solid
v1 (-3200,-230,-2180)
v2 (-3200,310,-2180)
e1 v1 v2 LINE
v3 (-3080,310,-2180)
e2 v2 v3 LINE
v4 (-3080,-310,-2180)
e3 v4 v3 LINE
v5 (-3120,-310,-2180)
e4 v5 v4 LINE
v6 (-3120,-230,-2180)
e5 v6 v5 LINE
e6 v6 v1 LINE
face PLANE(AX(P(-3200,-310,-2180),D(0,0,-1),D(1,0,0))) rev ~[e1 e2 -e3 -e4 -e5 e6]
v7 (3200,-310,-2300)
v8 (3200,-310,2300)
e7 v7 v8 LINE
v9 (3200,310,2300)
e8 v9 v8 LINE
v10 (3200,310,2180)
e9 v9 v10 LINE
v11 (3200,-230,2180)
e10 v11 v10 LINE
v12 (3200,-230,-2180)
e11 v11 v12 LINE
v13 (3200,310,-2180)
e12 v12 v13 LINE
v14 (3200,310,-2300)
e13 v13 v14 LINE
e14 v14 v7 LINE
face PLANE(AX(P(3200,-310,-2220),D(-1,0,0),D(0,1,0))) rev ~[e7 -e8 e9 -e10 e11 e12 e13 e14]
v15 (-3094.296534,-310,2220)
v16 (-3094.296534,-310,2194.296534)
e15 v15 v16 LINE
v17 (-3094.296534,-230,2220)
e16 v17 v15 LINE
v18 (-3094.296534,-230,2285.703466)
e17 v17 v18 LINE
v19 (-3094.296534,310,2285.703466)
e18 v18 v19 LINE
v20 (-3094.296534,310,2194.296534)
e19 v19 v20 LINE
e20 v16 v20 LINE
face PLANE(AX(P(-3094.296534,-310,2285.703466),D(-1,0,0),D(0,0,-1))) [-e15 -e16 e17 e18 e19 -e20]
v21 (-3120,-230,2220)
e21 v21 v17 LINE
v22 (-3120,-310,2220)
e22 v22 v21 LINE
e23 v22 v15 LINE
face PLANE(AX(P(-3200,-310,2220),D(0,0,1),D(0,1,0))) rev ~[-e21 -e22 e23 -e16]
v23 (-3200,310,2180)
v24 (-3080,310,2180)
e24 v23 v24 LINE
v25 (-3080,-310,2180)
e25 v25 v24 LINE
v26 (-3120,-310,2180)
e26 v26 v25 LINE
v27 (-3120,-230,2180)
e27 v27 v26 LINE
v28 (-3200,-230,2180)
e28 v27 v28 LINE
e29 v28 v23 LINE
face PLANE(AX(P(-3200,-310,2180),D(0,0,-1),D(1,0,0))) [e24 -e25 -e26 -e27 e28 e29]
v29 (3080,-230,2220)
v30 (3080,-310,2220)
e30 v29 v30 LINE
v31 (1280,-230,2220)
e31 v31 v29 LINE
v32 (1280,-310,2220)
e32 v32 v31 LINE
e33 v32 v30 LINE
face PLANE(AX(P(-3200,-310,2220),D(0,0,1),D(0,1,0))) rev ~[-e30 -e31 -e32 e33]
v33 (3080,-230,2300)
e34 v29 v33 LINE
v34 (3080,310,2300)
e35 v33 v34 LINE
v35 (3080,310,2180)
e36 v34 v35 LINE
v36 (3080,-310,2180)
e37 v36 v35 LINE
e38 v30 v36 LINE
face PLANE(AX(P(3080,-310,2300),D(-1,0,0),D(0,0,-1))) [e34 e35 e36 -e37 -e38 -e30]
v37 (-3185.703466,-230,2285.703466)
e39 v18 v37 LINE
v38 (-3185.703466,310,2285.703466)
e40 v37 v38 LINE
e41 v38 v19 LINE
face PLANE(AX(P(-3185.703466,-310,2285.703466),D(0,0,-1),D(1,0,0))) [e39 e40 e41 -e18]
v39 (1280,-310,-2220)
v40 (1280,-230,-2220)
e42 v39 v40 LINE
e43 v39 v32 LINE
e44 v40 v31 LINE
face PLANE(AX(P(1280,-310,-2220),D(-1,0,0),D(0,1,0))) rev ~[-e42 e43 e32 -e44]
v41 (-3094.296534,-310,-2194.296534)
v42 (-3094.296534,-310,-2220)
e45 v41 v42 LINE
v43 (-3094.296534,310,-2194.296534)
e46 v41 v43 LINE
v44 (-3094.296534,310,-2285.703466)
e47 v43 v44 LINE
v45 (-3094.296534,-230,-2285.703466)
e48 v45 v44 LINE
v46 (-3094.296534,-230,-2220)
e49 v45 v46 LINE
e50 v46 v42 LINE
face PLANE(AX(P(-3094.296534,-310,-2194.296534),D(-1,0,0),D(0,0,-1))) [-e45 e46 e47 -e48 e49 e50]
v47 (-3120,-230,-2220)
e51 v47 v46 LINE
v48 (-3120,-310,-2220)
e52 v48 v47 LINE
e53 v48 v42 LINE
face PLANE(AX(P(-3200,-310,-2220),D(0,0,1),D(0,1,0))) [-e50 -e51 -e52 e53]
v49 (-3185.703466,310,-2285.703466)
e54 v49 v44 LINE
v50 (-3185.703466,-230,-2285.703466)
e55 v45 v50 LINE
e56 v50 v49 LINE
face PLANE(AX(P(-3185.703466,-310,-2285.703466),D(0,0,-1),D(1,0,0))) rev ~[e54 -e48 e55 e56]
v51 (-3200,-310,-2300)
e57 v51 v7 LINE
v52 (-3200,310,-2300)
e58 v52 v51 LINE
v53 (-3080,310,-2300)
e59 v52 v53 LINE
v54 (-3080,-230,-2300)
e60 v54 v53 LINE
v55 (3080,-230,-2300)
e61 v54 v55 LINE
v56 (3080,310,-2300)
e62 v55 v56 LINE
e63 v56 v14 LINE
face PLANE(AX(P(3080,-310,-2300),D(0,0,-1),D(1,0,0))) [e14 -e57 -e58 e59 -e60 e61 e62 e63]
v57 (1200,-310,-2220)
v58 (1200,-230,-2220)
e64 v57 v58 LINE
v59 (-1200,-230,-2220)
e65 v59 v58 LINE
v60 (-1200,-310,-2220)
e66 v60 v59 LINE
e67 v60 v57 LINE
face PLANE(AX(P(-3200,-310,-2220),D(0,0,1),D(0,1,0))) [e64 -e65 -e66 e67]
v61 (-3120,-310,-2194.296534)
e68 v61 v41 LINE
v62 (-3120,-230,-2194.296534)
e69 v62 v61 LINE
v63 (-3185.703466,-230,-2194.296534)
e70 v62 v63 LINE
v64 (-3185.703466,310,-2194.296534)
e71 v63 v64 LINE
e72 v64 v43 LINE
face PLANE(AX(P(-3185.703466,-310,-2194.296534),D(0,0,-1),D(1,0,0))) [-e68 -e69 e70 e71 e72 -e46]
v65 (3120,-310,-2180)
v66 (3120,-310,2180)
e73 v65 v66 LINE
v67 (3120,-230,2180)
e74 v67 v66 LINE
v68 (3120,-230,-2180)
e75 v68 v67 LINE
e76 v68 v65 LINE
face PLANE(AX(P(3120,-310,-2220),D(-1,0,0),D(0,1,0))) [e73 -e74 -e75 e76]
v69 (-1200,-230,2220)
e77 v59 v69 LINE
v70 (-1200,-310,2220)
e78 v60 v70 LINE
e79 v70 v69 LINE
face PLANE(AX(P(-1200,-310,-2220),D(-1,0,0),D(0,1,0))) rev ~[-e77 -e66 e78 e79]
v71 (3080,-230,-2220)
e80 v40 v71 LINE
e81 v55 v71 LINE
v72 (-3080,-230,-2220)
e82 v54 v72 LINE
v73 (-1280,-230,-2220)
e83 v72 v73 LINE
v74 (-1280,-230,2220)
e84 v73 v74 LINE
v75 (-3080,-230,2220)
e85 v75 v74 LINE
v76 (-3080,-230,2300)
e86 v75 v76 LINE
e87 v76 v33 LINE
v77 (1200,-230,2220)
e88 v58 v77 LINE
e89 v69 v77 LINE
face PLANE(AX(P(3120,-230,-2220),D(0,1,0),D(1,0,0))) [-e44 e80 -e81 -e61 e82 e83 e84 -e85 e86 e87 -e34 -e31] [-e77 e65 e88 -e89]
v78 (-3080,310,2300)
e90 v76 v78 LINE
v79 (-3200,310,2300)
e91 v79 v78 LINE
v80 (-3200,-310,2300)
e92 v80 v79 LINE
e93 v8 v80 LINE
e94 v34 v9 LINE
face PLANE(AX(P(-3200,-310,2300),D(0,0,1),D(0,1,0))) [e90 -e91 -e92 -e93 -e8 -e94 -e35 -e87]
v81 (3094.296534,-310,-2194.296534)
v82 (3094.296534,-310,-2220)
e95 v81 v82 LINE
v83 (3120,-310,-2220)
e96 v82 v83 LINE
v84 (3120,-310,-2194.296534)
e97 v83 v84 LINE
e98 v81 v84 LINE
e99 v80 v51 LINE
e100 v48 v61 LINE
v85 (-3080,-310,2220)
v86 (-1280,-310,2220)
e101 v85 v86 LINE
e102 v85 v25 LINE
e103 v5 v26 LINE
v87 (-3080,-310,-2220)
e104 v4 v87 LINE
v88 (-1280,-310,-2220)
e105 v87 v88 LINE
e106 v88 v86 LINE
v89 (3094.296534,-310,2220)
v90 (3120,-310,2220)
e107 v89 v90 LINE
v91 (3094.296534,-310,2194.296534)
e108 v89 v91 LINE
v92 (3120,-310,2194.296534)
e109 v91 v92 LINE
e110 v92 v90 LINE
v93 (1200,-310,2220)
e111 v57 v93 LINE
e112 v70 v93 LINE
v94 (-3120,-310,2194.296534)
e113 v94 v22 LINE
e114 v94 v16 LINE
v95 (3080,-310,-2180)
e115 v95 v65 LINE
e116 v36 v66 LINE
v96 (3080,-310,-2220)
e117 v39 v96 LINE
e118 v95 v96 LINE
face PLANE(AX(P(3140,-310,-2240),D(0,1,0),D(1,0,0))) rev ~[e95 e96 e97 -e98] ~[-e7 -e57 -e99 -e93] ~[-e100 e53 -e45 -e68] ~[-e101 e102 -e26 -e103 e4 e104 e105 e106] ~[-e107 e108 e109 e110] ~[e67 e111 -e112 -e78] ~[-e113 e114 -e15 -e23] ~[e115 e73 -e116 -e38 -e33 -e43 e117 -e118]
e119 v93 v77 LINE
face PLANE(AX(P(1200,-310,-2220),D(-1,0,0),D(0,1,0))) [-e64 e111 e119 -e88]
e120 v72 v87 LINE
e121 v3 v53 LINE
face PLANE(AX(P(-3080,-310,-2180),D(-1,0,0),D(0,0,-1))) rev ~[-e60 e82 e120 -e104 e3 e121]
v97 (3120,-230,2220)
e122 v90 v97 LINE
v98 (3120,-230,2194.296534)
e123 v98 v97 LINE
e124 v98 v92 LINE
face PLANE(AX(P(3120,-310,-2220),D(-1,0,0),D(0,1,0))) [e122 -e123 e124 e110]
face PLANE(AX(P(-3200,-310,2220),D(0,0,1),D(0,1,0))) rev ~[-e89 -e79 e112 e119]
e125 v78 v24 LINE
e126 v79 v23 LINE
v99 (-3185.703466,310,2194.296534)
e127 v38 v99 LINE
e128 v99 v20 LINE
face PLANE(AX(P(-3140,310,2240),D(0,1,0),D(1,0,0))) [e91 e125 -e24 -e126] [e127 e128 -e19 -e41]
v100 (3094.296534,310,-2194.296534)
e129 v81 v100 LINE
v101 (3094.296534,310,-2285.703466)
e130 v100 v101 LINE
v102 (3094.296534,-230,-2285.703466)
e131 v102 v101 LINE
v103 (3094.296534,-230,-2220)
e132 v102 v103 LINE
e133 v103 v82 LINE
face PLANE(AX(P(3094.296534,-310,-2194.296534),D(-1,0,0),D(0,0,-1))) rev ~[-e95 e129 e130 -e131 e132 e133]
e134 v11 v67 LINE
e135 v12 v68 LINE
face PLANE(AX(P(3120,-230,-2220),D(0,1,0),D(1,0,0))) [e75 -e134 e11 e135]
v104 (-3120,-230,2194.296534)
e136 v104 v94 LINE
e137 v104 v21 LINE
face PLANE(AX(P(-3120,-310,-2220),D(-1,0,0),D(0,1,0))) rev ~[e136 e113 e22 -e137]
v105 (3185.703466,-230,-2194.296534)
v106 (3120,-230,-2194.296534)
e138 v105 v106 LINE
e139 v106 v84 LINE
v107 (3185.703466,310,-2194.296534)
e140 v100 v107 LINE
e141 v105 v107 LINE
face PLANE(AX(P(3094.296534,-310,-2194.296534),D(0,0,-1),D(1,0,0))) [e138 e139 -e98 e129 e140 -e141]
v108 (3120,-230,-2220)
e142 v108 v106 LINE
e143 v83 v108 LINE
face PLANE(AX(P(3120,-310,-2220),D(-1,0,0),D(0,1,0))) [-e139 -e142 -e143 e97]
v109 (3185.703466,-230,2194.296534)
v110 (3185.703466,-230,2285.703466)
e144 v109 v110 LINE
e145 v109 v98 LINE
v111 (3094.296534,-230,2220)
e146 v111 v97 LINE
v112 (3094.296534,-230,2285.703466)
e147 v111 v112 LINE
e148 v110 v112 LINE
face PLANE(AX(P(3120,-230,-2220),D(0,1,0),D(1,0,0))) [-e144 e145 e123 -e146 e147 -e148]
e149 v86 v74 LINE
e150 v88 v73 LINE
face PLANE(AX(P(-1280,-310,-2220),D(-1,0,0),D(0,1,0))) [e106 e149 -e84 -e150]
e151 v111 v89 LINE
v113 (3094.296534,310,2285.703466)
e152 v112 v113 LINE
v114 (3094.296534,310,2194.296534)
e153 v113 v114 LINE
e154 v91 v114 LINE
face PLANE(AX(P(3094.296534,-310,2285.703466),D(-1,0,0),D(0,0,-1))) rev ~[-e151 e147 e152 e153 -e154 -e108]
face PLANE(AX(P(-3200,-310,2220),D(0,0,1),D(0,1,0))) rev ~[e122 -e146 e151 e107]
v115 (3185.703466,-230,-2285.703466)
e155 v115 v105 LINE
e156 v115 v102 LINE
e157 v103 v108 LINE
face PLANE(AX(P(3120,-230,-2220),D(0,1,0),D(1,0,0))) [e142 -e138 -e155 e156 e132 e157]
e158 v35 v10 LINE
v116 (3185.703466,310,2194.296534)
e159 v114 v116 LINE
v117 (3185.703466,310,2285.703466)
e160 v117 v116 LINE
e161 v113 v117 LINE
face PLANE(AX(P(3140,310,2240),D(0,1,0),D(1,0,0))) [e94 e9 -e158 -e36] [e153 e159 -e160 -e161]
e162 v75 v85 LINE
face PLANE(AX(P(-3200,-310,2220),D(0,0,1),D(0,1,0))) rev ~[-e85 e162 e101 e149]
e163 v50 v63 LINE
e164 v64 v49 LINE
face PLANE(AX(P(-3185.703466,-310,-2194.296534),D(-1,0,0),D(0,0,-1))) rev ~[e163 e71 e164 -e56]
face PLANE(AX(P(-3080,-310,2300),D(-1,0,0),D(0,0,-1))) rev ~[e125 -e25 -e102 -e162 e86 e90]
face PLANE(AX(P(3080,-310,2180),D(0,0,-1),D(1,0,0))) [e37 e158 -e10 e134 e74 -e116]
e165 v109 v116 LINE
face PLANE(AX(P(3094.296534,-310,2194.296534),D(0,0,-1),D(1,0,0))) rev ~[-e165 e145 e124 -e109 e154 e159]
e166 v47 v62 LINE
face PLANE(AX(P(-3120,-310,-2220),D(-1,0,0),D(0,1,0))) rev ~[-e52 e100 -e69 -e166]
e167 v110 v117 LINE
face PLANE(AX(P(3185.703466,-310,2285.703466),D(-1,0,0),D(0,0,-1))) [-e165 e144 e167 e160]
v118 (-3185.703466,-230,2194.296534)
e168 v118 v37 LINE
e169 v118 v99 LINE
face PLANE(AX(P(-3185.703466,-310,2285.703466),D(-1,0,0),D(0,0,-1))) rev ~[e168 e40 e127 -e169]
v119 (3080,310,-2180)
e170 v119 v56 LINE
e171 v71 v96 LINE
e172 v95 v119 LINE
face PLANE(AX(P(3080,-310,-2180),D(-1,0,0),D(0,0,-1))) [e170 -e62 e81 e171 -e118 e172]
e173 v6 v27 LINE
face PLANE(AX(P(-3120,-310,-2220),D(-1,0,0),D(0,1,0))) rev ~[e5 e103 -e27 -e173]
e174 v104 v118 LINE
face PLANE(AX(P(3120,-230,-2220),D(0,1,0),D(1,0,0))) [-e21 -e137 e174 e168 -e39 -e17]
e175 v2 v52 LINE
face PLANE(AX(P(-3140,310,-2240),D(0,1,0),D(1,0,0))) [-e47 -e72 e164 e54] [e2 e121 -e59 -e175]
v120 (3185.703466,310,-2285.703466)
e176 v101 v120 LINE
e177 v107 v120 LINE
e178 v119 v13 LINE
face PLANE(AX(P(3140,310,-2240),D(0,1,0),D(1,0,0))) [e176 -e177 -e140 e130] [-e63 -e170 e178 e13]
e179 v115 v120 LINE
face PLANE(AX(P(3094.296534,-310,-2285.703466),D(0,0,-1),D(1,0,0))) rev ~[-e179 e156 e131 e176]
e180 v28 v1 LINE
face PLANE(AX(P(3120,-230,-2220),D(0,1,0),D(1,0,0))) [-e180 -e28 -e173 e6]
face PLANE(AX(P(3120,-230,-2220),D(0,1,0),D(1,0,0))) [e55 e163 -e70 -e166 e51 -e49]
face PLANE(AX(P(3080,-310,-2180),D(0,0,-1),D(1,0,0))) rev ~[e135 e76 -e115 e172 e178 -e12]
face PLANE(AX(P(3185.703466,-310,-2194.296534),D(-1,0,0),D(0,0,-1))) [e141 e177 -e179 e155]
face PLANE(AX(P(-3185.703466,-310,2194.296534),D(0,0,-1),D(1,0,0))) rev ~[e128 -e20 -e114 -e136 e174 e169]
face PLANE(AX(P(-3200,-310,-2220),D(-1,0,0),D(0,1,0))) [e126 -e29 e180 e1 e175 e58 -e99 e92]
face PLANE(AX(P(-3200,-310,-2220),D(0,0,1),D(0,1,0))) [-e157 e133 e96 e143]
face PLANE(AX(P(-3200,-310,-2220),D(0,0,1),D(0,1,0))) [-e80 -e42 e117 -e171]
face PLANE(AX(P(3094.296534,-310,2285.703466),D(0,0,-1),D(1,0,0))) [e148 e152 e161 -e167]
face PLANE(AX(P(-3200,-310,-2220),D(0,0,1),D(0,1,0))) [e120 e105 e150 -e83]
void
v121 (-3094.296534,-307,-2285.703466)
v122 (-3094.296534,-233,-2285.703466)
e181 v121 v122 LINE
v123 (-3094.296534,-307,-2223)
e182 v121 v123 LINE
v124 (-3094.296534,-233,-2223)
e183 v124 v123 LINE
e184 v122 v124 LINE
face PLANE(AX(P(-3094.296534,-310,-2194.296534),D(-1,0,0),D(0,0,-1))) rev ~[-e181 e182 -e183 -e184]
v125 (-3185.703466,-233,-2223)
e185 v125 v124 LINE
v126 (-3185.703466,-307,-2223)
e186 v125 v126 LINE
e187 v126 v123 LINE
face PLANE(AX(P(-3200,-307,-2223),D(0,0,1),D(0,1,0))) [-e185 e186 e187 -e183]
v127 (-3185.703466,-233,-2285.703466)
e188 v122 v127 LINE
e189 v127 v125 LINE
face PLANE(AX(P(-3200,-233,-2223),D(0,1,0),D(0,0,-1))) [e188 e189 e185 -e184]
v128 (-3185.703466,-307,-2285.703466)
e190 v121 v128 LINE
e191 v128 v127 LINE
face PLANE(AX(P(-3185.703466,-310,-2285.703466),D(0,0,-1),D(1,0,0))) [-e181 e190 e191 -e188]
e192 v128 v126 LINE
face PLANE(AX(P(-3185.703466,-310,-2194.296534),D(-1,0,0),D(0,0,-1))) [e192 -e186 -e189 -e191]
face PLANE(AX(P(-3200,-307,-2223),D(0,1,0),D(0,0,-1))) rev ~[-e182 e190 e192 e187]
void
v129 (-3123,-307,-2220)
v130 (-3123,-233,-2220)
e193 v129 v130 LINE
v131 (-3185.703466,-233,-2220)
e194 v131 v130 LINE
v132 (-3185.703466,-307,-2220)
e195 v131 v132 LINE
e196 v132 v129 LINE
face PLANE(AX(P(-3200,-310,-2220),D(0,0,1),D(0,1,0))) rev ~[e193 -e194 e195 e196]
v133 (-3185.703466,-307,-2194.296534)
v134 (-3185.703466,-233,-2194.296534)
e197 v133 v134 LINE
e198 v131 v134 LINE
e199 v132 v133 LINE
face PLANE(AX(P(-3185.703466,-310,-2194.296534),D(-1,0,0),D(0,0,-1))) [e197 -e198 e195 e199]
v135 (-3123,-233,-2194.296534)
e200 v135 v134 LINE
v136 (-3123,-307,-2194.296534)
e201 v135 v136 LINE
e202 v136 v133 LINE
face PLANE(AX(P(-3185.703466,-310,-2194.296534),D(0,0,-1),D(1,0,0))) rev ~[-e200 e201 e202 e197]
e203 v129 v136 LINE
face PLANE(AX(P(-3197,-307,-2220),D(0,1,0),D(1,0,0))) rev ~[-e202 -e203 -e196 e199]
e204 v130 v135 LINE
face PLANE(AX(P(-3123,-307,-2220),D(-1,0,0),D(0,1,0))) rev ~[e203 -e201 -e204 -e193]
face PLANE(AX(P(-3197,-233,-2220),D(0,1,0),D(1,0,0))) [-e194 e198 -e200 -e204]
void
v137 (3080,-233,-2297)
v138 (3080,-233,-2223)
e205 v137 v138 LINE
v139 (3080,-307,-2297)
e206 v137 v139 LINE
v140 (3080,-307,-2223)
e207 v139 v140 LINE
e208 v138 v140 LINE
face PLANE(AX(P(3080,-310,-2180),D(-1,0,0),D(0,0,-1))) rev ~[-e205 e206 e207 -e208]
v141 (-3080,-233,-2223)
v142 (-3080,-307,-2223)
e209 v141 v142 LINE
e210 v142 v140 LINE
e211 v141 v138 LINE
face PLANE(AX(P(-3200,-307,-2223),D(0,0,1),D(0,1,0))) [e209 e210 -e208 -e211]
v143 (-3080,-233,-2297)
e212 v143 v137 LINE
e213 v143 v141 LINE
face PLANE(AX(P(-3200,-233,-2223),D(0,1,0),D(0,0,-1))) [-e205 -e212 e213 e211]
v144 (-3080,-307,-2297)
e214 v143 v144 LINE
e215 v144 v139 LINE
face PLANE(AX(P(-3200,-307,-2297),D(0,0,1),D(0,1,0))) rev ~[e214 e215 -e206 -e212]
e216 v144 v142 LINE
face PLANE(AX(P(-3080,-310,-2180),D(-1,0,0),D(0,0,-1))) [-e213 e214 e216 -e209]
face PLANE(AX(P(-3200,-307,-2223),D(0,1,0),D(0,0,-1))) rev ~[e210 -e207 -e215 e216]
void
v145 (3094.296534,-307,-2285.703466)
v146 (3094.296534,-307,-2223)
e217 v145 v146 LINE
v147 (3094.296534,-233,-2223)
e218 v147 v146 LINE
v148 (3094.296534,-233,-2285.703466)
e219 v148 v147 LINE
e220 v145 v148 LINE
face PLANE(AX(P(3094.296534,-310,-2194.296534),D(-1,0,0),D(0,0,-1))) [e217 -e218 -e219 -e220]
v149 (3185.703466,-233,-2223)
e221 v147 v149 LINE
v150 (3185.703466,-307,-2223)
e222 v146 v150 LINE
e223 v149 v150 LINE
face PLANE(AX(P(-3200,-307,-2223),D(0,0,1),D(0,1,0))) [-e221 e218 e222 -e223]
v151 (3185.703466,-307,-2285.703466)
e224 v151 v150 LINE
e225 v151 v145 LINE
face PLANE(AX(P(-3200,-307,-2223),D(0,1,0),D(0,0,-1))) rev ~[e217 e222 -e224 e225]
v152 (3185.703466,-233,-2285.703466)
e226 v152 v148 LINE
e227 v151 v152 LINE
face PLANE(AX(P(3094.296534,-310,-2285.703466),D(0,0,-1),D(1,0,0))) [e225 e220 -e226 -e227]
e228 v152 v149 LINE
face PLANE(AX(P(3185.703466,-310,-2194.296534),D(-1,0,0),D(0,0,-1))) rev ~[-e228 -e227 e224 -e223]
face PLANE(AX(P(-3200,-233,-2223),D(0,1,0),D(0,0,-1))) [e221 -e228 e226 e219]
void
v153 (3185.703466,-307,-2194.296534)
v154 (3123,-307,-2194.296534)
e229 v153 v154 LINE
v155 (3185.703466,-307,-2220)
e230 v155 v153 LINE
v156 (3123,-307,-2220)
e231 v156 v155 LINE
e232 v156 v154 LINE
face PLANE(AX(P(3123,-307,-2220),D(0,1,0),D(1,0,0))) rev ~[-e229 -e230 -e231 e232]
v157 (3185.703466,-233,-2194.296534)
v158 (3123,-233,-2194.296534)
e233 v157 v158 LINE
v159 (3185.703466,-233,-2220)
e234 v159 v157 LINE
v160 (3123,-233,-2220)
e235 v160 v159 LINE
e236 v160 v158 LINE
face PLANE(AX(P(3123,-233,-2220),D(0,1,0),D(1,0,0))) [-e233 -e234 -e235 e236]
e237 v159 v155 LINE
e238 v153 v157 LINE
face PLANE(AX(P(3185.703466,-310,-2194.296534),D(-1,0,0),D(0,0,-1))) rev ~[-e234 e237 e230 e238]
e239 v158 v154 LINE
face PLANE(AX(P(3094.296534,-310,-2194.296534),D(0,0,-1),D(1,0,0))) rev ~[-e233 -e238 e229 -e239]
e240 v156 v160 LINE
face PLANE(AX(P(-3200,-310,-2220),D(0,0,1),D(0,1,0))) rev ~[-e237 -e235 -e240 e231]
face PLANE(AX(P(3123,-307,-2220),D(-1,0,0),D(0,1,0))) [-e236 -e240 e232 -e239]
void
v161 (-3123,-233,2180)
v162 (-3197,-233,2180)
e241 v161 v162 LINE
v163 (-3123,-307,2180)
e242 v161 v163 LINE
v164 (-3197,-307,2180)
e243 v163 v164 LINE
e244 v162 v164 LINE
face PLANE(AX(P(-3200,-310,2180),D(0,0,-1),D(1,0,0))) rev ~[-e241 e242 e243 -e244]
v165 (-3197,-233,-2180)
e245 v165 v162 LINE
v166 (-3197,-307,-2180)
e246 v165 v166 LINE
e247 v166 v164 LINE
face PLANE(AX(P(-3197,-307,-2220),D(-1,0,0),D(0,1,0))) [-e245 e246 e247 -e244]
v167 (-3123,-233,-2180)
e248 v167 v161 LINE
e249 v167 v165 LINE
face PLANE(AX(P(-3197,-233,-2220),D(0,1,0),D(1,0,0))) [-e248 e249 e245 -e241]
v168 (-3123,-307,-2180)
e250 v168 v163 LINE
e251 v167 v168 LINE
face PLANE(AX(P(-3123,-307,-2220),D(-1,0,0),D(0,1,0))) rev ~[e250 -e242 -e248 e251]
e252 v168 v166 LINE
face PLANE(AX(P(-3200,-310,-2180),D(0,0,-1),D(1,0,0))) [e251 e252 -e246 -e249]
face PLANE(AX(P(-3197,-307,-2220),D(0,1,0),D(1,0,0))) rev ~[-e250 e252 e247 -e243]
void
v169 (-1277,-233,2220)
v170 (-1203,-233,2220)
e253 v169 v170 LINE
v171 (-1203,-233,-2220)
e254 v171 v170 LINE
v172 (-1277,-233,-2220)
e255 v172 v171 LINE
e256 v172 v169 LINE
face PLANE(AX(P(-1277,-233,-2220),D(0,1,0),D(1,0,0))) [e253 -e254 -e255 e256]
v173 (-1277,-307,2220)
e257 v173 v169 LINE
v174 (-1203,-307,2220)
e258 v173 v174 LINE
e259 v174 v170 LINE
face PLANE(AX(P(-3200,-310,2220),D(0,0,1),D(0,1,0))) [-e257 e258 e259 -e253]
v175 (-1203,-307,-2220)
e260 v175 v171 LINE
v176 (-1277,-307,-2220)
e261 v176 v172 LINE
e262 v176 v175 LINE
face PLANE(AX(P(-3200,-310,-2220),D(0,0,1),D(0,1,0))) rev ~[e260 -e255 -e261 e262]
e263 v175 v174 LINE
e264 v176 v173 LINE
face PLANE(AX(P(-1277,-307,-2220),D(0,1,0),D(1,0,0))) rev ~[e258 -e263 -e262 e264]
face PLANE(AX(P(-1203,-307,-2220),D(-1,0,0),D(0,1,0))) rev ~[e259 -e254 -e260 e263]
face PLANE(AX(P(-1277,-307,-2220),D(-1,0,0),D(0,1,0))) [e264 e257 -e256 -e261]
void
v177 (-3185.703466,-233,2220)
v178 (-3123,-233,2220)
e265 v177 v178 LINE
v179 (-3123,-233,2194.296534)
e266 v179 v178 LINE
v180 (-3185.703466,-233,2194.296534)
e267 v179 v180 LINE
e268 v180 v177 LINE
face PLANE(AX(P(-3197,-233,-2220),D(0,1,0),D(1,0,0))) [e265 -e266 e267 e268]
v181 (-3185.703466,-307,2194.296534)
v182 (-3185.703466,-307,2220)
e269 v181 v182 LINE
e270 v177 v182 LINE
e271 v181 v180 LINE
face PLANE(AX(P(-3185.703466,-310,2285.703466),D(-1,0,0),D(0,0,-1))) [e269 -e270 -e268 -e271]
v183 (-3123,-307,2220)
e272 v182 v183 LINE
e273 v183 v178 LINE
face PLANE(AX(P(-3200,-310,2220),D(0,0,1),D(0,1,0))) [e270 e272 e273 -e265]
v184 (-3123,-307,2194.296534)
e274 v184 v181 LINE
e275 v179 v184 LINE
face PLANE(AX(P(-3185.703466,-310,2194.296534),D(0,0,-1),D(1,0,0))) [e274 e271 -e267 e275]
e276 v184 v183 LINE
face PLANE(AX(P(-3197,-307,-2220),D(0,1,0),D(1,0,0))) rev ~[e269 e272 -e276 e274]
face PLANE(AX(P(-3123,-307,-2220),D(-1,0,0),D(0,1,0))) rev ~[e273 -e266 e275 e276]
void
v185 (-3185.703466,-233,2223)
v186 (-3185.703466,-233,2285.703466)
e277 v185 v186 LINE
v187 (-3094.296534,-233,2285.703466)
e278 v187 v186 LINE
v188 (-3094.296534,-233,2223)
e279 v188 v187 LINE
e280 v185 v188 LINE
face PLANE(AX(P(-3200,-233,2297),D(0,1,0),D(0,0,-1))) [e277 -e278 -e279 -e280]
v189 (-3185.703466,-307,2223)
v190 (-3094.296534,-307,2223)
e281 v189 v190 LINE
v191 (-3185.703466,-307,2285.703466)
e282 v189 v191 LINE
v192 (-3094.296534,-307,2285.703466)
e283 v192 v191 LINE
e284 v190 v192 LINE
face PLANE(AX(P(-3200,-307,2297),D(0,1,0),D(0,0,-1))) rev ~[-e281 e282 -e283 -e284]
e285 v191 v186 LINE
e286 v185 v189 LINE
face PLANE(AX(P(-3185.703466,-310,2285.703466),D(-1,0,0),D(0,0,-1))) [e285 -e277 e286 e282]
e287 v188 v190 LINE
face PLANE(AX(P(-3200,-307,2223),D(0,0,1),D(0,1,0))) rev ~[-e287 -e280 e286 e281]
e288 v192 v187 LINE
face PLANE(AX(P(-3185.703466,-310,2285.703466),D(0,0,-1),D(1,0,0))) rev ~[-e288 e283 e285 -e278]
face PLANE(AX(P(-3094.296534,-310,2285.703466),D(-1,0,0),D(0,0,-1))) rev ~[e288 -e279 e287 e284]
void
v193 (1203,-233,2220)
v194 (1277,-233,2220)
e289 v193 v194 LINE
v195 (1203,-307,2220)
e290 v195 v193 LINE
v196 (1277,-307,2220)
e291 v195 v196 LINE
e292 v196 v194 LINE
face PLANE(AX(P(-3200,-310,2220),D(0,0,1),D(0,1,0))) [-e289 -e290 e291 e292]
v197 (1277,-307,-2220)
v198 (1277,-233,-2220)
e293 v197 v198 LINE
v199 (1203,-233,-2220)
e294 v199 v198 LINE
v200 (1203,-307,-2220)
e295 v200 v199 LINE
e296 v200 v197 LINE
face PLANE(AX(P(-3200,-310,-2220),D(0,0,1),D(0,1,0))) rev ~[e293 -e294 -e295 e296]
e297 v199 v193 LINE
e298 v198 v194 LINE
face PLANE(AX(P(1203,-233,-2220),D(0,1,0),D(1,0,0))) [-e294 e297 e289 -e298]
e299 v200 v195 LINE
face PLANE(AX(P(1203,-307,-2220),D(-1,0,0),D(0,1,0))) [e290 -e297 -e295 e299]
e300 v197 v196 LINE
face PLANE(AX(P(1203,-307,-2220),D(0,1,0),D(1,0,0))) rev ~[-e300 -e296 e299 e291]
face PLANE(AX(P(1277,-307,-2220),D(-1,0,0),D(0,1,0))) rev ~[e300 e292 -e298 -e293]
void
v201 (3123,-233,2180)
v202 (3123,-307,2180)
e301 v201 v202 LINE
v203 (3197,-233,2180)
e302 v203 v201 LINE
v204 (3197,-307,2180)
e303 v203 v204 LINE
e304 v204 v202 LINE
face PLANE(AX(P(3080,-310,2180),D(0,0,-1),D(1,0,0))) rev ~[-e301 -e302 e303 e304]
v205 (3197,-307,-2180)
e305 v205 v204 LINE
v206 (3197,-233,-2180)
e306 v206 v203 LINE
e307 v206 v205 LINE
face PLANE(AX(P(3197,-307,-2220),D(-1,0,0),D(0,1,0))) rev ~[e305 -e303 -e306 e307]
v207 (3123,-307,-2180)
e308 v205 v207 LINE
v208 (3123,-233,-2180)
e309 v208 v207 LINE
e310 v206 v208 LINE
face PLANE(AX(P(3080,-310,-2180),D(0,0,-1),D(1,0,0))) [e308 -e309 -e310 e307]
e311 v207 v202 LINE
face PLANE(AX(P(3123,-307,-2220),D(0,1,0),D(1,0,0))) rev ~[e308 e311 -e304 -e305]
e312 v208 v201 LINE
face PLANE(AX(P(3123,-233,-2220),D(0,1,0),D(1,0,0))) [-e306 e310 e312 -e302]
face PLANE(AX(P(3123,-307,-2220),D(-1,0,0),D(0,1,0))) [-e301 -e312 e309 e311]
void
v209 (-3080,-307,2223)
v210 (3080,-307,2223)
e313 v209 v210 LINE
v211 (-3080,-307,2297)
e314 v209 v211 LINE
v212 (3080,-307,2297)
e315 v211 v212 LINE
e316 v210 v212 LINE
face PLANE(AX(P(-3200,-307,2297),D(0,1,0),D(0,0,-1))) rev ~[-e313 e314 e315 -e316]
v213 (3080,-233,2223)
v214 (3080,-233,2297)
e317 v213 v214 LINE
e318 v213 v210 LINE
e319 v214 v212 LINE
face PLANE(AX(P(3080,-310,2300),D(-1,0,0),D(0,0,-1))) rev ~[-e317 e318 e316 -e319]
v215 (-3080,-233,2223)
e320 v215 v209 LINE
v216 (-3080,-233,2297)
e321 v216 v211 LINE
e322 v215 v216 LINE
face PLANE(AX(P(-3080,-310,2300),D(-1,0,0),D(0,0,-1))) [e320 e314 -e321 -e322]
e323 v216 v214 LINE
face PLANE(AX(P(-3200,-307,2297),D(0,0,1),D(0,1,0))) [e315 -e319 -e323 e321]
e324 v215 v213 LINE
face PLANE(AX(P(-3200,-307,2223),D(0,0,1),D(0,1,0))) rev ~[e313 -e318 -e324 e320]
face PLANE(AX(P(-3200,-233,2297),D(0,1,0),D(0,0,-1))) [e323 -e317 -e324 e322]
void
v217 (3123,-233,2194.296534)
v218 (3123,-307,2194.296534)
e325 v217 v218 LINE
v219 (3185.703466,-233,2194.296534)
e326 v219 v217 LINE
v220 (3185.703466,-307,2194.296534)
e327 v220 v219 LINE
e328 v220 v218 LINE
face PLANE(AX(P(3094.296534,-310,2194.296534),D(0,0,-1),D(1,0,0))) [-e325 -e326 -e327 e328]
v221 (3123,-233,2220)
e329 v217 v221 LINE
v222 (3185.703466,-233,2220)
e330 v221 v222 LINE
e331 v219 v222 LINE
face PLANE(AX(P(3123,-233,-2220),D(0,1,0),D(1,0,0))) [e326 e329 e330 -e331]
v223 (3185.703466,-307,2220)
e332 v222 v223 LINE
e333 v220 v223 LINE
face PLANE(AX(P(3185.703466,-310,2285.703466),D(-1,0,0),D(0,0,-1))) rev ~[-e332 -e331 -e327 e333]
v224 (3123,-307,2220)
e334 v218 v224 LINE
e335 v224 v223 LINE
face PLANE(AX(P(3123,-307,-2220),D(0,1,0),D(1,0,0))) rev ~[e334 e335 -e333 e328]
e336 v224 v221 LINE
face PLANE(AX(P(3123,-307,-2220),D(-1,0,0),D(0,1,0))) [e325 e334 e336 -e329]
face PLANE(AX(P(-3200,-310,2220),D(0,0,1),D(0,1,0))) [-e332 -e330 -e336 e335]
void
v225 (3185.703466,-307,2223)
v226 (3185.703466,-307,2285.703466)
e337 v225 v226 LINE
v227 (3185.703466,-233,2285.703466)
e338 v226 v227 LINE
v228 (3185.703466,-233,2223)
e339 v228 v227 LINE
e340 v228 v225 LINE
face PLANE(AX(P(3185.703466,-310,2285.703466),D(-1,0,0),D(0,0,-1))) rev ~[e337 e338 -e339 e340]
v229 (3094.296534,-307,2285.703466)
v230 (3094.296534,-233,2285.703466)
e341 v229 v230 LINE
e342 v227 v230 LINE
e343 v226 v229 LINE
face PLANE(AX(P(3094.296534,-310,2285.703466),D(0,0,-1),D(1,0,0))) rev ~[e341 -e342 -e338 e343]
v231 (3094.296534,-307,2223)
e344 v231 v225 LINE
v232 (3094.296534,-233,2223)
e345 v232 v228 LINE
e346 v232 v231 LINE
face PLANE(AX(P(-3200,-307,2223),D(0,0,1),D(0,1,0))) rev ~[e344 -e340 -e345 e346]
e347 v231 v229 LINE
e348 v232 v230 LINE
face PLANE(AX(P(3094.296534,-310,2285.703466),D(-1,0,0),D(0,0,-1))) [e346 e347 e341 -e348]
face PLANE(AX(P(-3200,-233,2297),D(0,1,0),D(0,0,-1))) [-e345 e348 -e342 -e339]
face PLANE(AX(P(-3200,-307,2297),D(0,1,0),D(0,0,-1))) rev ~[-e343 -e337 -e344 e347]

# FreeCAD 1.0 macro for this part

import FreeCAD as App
import Part
import Sketcher
Q = App.Units.Quantity

doc = App.newDocument("Part")
body = doc.addObject("PartDesign::Body", "Body")

sketch1 = body.newObject("Sketcher::SketchObject", "Sketch")
sketch1.AttachmentSupport = (doc.getObject("YZ_Plane"), [""])
sketch1.MapMode = "FlatFace"
sketch1.AttachmentOffset = App.Placement(App.Vector(0, 0, -3200), App.Rotation())
sketch1.addGeometry([
    Part.LineSegment(App.Vector(-230, -2220, 0), App.Vector(-310, -2220, 0)),
    Part.LineSegment(App.Vector(-310, -2220, 0), App.Vector(-310, -2300, 0)),
    Part.LineSegment(App.Vector(-310, -2300, 0), App.Vector(-230, -2300, 0)),
    Part.LineSegment(App.Vector(-230, -2300, 0), App.Vector(-230, -2220, 0)),
    Part.LineSegment(App.Vector(-307, -2297, 0), App.Vector(-307, -2223, 0)),
    Part.LineSegment(App.Vector(-307, -2223, 0), App.Vector(-233, -2223, 0)),
    Part.LineSegment(App.Vector(-233, -2223, 0), App.Vector(-233, -2297, 0)),
    Part.LineSegment(App.Vector(-233, -2297, 0), App.Vector(-307, -2297, 0)),
], False)
sketch1.addConstraint([
    Sketcher.Constraint("Coincident", 0, 2, 1, 1),
    Sketcher.Constraint("Coincident", 1, 2, 2, 1),
    Sketcher.Constraint("Coincident", 2, 2, 3, 1),
    Sketcher.Constraint("Coincident", 3, 2, 0, 1),
    Sketcher.Constraint("Coincident", 4, 2, 5, 1),
    Sketcher.Constraint("Coincident", 5, 2, 6, 1),
    Sketcher.Constraint("Coincident", 6, 2, 7, 1),
    Sketcher.Constraint("Coincident", 7, 2, 4, 1),
    Sketcher.Constraint("Horizontal", 0),
    Sketcher.Constraint("Vertical", 1),
    Sketcher.Constraint("Horizontal", 2),
    Sketcher.Constraint("Vertical", 3),
    Sketcher.Constraint("Vertical", 4),
    Sketcher.Constraint("Horizontal", 5),
    Sketcher.Constraint("Vertical", 6),
    Sketcher.Constraint("Horizontal", 7),
    Sketcher.Constraint("Equal", 2, 1),
    Sketcher.Constraint("Equal", 7, 4),
    Sketcher.Constraint("DistanceX", 0, 2, 0, 1, Q("80 mm")),
    Sketcher.Constraint("DistanceX", 5, 1, 5, 2, Q("74 mm")),
    Sketcher.Constraint("DistanceX", 0, 2, -1, 1, Q("310 mm")),
    Sketcher.Constraint("DistanceY", 0, 2, -1, 1, Q("2220 mm")),
    Sketcher.Constraint("DistanceX", 4, 2, -1, 1, Q("307 mm")),
    Sketcher.Constraint("DistanceY", 4, 2, -1, 1, Q("2223 mm")),
])
pad1 = body.newObject("PartDesign::Pad", "Pad")
pad1.Profile = sketch1
pad1.Length = 6400
body2 = doc.addObject("PartDesign::Body", "Body001")

sketch2 = body2.newObject("Sketcher::SketchObject", "Sketch001")
sketch2.AttachmentSupport = (doc.getObject("YZ_Plane001"), [""])
sketch2.MapMode = "FlatFace"
sketch2.AttachmentOffset = App.Placement(App.Vector(0, 0, -3200), App.Rotation())
sketch2.addGeometry([
    Part.LineSegment(App.Vector(-230, 2300, 0), App.Vector(-310, 2300, 0)),
    Part.LineSegment(App.Vector(-310, 2300, 0), App.Vector(-310, 2220, 0)),
    Part.LineSegment(App.Vector(-310, 2220, 0), App.Vector(-230, 2220, 0)),
    Part.LineSegment(App.Vector(-230, 2220, 0), App.Vector(-230, 2300, 0)),
    Part.LineSegment(App.Vector(-307, 2223, 0), App.Vector(-307, 2297, 0)),
    Part.LineSegment(App.Vector(-307, 2297, 0), App.Vector(-233, 2297, 0)),
    Part.LineSegment(App.Vector(-233, 2297, 0), App.Vector(-233, 2223, 0)),
    Part.LineSegment(App.Vector(-233, 2223, 0), App.Vector(-307, 2223, 0)),
], False)
sketch2.addConstraint([
    Sketcher.Constraint("Coincident", 0, 2, 1, 1),
    Sketcher.Constraint("Coincident", 1, 2, 2, 1),
    Sketcher.Constraint("Coincident", 2, 2, 3, 1),
    Sketcher.Constraint("Coincident", 3, 2, 0, 1),
    Sketcher.Constraint("Coincident", 4, 2, 5, 1),
    Sketcher.Constraint("Coincident", 5, 2, 6, 1),
    Sketcher.Constraint("Coincident", 6, 2, 7, 1),
    Sketcher.Constraint("Coincident", 7, 2, 4, 1),
    Sketcher.Constraint("Horizontal", 0),
    Sketcher.Constraint("Vertical", 1),
    Sketcher.Constraint("Horizontal", 2),
    Sketcher.Constraint("Vertical", 3),
    Sketcher.Constraint("Vertical", 4),
    Sketcher.Constraint("Horizontal", 5),
    Sketcher.Constraint("Vertical", 6),
    Sketcher.Constraint("Horizontal", 7),
    Sketcher.Constraint("Equal", 2, 1),
    Sketcher.Constraint("Equal", 7, 4),
    Sketcher.Constraint("DistanceX", 0, 2, 0, 1, Q("80 mm")),
    Sketcher.Constraint("DistanceX", 5, 1, 5, 2, Q("74 mm")),
    Sketcher.Constraint("DistanceX", 0, 2, -1, 1, Q("310 mm")),
    Sketcher.Constraint("DistanceY", -1, 1, 0, 2, Q("2300 mm")),
    Sketcher.Constraint("DistanceX", 4, 2, -1, 1, Q("307 mm")),
    Sketcher.Constraint("DistanceY", -1, 1, 4, 2, Q("2297 mm")),
])
pad2 = body2.newObject("PartDesign::Pad", "Pad001")
pad2.Profile = sketch2
pad2.Length = 6400
body.AllowCompound = True
doc.recompute()

boolean = body.newObject("PartDesign::Boolean", "Boolean")
boolean.Type = "Fuse"
boolean.addObjects([body2])

sketch3 = body.newObject("Sketcher::SketchObject", "Sketch002")
sketch3.AttachmentSupport = (doc.getObject("XY_Plane"), [""])
sketch3.MapMode = "FlatFace"
sketch3.AttachmentOffset = App.Placement(App.Vector(0, 0, -2220), App.Rotation())
sketch3.addGeometry([
    Part.LineSegment(App.Vector(-3200, -230, 0), App.Vector(-3200, -310, 0)),
    Part.LineSegment(App.Vector(-3200, -310, 0), App.Vector(-3120, -310, 0)),
    Part.LineSegment(App.Vector(-3120, -310, 0), App.Vector(-3120, -230, 0)),
    Part.LineSegment(App.Vector(-3120, -230, 0), App.Vector(-3200, -230, 0)),
    Part.LineSegment(App.Vector(-3123, -307, 0), App.Vector(-3197, -307, 0)),
    Part.LineSegment(App.Vector(-3197, -307, 0), App.Vector(-3197, -233, 0)),
    Part.LineSegment(App.Vector(-3197, -233, 0), App.Vector(-3123, -233, 0)),
    Part.LineSegment(App.Vector(-3123, -233, 0), App.Vector(-3123, -307, 0)),
], False)
sketch3.addConstraint([
    Sketcher.Constraint("Coincident", 0, 2, 1, 1),
    Sketcher.Constraint("Coincident", 1, 2, 2, 1),
    Sketcher.Constraint("Coincident", 2, 2, 3, 1),
    Sketcher.Constraint("Coincident", 3, 2, 0, 1),
    Sketcher.Constraint("Coincident", 4, 2, 5, 1),
    Sketcher.Constraint("Coincident", 5, 2, 6, 1),
    Sketcher.Constraint("Coincident", 6, 2, 7, 1),
    Sketcher.Constraint("Coincident", 7, 2, 4, 1),
    Sketcher.Constraint("Vertical", 0),
    Sketcher.Constraint("Horizontal", 1),
    Sketcher.Constraint("Vertical", 2),
    Sketcher.Constraint("Horizontal", 3),
    Sketcher.Constraint("Horizontal", 4),
    Sketcher.Constraint("Vertical", 5),
    Sketcher.Constraint("Horizontal", 6),
    Sketcher.Constraint("Vertical", 7),
    Sketcher.Constraint("Equal", 3, 0),
    Sketcher.Constraint("Equal", 6, 5),
    Sketcher.Constraint("DistanceX", 1, 1, 1, 2, Q("80 mm")),
    Sketcher.Constraint("DistanceX", 4, 2, 4, 1, Q("74 mm")),
    Sketcher.Constraint("DistanceX", 0, 2, -1, 1, Q("3200 mm")),
    Sketcher.Constraint("DistanceY", 0, 2, -1, 1, Q("310 mm")),
    Sketcher.Constraint("DistanceX", 4, 2, -1, 1, Q("3197 mm")),
    Sketcher.Constraint("DistanceY", 4, 2, -1, 1, Q("307 mm")),
])
pad3 = body.newObject("PartDesign::Pad", "Pad002")
pad3.Profile = sketch3
pad3.Length = 4440

sketch4 = body.newObject("Sketcher::SketchObject", "Sketch003")
sketch4.AttachmentSupport = (doc.getObject("XY_Plane"), [""])
sketch4.MapMode = "FlatFace"
sketch4.AttachmentOffset = App.Placement(App.Vector(0, 0, -2220), App.Rotation())
sketch4.addGeometry([
    Part.LineSegment(App.Vector(-1280, -230, 0), App.Vector(-1280, -310, 0)),
    Part.LineSegment(App.Vector(-1280, -310, 0), App.Vector(-1200, -310, 0)),
    Part.LineSegment(App.Vector(-1200, -310, 0), App.Vector(-1200, -230, 0)),
    Part.LineSegment(App.Vector(-1200, -230, 0), App.Vector(-1280, -230, 0)),
    Part.LineSegment(App.Vector(-1203, -307, 0), App.Vector(-1277, -307, 0)),
    Part.LineSegment(App.Vector(-1277, -307, 0), App.Vector(-1277, -233, 0)),
    Part.LineSegment(App.Vector(-1277, -233, 0), App.Vector(-1203, -233, 0)),
    Part.LineSegment(App.Vector(-1203, -233, 0), App.Vector(-1203, -307, 0)),
], False)
sketch4.addConstraint([
    Sketcher.Constraint("Coincident", 0, 2, 1, 1),
    Sketcher.Constraint("Coincident", 1, 2, 2, 1),
    Sketcher.Constraint("Coincident", 2, 2, 3, 1),
    Sketcher.Constraint("Coincident", 3, 2, 0, 1),
    Sketcher.Constraint("Coincident", 4, 2, 5, 1),
    Sketcher.Constraint("Coincident", 5, 2, 6, 1),
    Sketcher.Constraint("Coincident", 6, 2, 7, 1),
    Sketcher.Constraint("Coincident", 7, 2, 4, 1),
    Sketcher.Constraint("Vertical", 0),
    Sketcher.Constraint("Horizontal", 1),
    Sketcher.Constraint("Vertical", 2),
    Sketcher.Constraint("Horizontal", 3),
    Sketcher.Constraint("Horizontal", 4),
    Sketcher.Constraint("Vertical", 5),
    Sketcher.Constraint("Horizontal", 6),
    Sketcher.Constraint("Vertical", 7),
    Sketcher.Constraint("Equal", 3, 0),
    Sketcher.Constraint("Equal", 6, 5),
    Sketcher.Constraint("DistanceX", 1, 1, 1, 2, Q("80 mm")),
    Sketcher.Constraint("DistanceX", 4, 2, 4, 1, Q("74 mm")),
    Sketcher.Constraint("DistanceX", 0, 2, -1, 1, Q("1280 mm")),
    Sketcher.Constraint("DistanceY", 0, 2, -1, 1, Q("310 mm")),
    Sketcher.Constraint("DistanceX", 4, 2, -1, 1, Q("1277 mm")),
    Sketcher.Constraint("DistanceY", 4, 2, -1, 1, Q("307 mm")),
])
pad4 = body.newObject("PartDesign::Pad", "Pad003")
pad4.Profile = sketch4
pad4.Length = 4440

sketch5 = body.newObject("Sketcher::SketchObject", "Sketch004")
sketch5.AttachmentSupport = (doc.getObject("XY_Plane"), [""])
sketch5.MapMode = "FlatFace"
sketch5.AttachmentOffset = App.Placement(App.Vector(0, 0, -2220), App.Rotation())
sketch5.addGeometry([
    Part.LineSegment(App.Vector(3120, -230, 0), App.Vector(3120, -310, 0)),
    Part.LineSegment(App.Vector(3120, -310, 0), App.Vector(3200, -310, 0)),
    Part.LineSegment(App.Vector(3200, -310, 0), App.Vector(3200, -230, 0)),
    Part.LineSegment(App.Vector(3200, -230, 0), App.Vector(3120, -230, 0)),
    Part.LineSegment(App.Vector(3197, -307, 0), App.Vector(3123, -307, 0)),
    Part.LineSegment(App.Vector(3123, -307, 0), App.Vector(3123, -233, 0)),
    Part.LineSegment(App.Vector(3123, -233, 0), App.Vector(3197, -233, 0)),
    Part.LineSegment(App.Vector(3197, -233, 0), App.Vector(3197, -307, 0)),
], False)
sketch5.addConstraint([
    Sketcher.Constraint("Coincident", 0, 2, 1, 1),
    Sketcher.Constraint("Coincident", 1, 2, 2, 1),
    Sketcher.Constraint("Coincident", 2, 2, 3, 1),
    Sketcher.Constraint("Coincident", 3, 2, 0, 1),
    Sketcher.Constraint("Coincident", 4, 2, 5, 1),
    Sketcher.Constraint("Coincident", 5, 2, 6, 1),
    Sketcher.Constraint("Coincident", 6, 2, 7, 1),
    Sketcher.Constraint("Coincident", 7, 2, 4, 1),
    Sketcher.Constraint("Vertical", 0),
    Sketcher.Constraint("Horizontal", 1),
    Sketcher.Constraint("Vertical", 2),
    Sketcher.Constraint("Horizontal", 3),
    Sketcher.Constraint("Horizontal", 4),
    Sketcher.Constraint("Vertical", 5),
    Sketcher.Constraint("Horizontal", 6),
    Sketcher.Constraint("Vertical", 7),
    Sketcher.Constraint("Equal", 3, 0),
    Sketcher.Constraint("Equal", 6, 5),
    Sketcher.Constraint("DistanceX", 1, 1, 1, 2, Q("80 mm")),
    Sketcher.Constraint("DistanceX", 4, 2, 4, 1, Q("74 mm")),
    Sketcher.Constraint("DistanceX", -1, 1, 0, 2, Q("3120 mm")),
    Sketcher.Constraint("DistanceY", 0, 2, -1, 1, Q("310 mm")),
    Sketcher.Constraint("DistanceX", -1, 1, 4, 2, Q("3123 mm")),
    Sketcher.Constraint("DistanceY", 4, 2, -1, 1, Q("307 mm")),
])
pad5 = body.newObject("PartDesign::Pad", "Pad004")
pad5.Profile = sketch5
pad5.Length = 4440

sketch6 = body.newObject("Sketcher::SketchObject", "Sketch005")
sketch6.AttachmentSupport = (doc.getObject("XY_Plane"), [""])
sketch6.MapMode = "FlatFace"
sketch6.AttachmentOffset = App.Placement(App.Vector(0, 0, -2220), App.Rotation())
sketch6.addGeometry([
    Part.LineSegment(App.Vector(1200, -230, 0), App.Vector(1200, -310, 0)),
    Part.LineSegment(App.Vector(1200, -310, 0), App.Vector(1280, -310, 0)),
    Part.LineSegment(App.Vector(1280, -310, 0), App.Vector(1280, -230, 0)),
    Part.LineSegment(App.Vector(1280, -230, 0), App.Vector(1200, -230, 0)),
    Part.LineSegment(App.Vector(1277, -307, 0), App.Vector(1203, -307, 0)),
    Part.LineSegment(App.Vector(1203, -307, 0), App.Vector(1203, -233, 0)),
    Part.LineSegment(App.Vector(1203, -233, 0), App.Vector(1277, -233, 0)),
    Part.LineSegment(App.Vector(1277, -233, 0), App.Vector(1277, -307, 0)),
], False)
sketch6.addConstraint([
    Sketcher.Constraint("Coincident", 0, 2, 1, 1),
    Sketcher.Constraint("Coincident", 1, 2, 2, 1),
    Sketcher.Constraint("Coincident", 2, 2, 3, 1),
    Sketcher.Constraint("Coincident", 3, 2, 0, 1),
    Sketcher.Constraint("Coincident", 4, 2, 5, 1),
    Sketcher.Constraint("Coincident", 5, 2, 6, 1),
    Sketcher.Constraint("Coincident", 6, 2, 7, 1),
    Sketcher.Constraint("Coincident", 7, 2, 4, 1),
    Sketcher.Constraint("Vertical", 0),
    Sketcher.Constraint("Horizontal", 1),
    Sketcher.Constraint("Vertical", 2),
    Sketcher.Constraint("Horizontal", 3),
    Sketcher.Constraint("Horizontal", 4),
    Sketcher.Constraint("Vertical", 5),
    Sketcher.Constraint("Horizontal", 6),
    Sketcher.Constraint("Vertical", 7),
    Sketcher.Constraint("Equal", 3, 0),
    Sketcher.Constraint("Equal", 6, 5),
    Sketcher.Constraint("DistanceX", 1, 1, 1, 2, Q("80 mm")),
    Sketcher.Constraint("DistanceX", 4, 2, 4, 1, Q("74 mm")),
    Sketcher.Constraint("DistanceX", -1, 1, 0, 2, Q("1200 mm")),
    Sketcher.Constraint("DistanceY", 0, 2, -1, 1, Q("310 mm")),
    Sketcher.Constraint("DistanceX", -1, 1, 4, 2, Q("1203 mm")),
    Sketcher.Constraint("DistanceY", 4, 2, -1, 1, Q("307 mm")),
])
pad6 = body.newObject("PartDesign::Pad", "Pad005")
pad6.Profile = sketch6
pad6.Length = 4440

sketch7 = body.newObject("Sketcher::SketchObject", "Sketch006")
sketch7.AttachmentSupport = (doc.getObject("XZ_Plane"), [""])
sketch7.MapMode = "FlatFace"
sketch7.AttachmentOffset = App.Placement(App.Vector(0, 0, 310), App.Rotation())
sketch7.addGeometry([
    Part.LineSegment(App.Vector(-3200, -2300, 0), App.Vector(-3200, -2180, 0)),
    Part.LineSegment(App.Vector(-3200, -2180, 0), App.Vector(-3080, -2180, 0)),
    Part.LineSegment(App.Vector(-3080, -2180, 0), App.Vector(-3080, -2300, 0)),
    Part.LineSegment(App.Vector(-3080, -2300, 0), App.Vector(-3200, -2300, 0)),
    Part.LineSegment(App.Vector(-3094.296534, -2194.296534, 0), App.Vector(-3185.703466, -2194.296534, 0)),
    Part.LineSegment(App.Vector(-3185.703466, -2194.296534, 0), App.Vector(-3185.703466, -2285.703466, 0)),
    Part.LineSegment(App.Vector(-3185.703466, -2285.703466, 0), App.Vector(-3094.296534, -2285.703466, 0)),
    Part.LineSegment(App.Vector(-3094.296534, -2285.703466, 0), App.Vector(-3094.296534, -2194.296534, 0)),
], False)
sketch7.addConstraint([
    Sketcher.Constraint("Coincident", 0, 2, 1, 1),
    Sketcher.Constraint("Coincident", 1, 2, 2, 1),
    Sketcher.Constraint("Coincident", 2, 2, 3, 1),
    Sketcher.Constraint("Coincident", 3, 2, 0, 1),
    Sketcher.Constraint("Coincident", 4, 2, 5, 1),
    Sketcher.Constraint("Coincident", 5, 2, 6, 1),
    Sketcher.Constraint("Coincident", 6, 2, 7, 1),
    Sketcher.Constraint("Coincident", 7, 2, 4, 1),
    Sketcher.Constraint("Vertical", 0),
    Sketcher.Constraint("Horizontal", 1),
    Sketcher.Constraint("Vertical", 2),
    Sketcher.Constraint("Horizontal", 3),
    Sketcher.Constraint("Horizontal", 4),
    Sketcher.Constraint("Vertical", 5),
    Sketcher.Constraint("Horizontal", 6),
    Sketcher.Constraint("Vertical", 7),
    Sketcher.Constraint("Equal", 3, 0),
    Sketcher.Constraint("Equal", 6, 5),
    Sketcher.Constraint("DistanceX", 1, 1, 1, 2, Q("120 mm")),
    Sketcher.Constraint("DistanceX", 0, 2, -1, 1, Q("3200 mm")),
    Sketcher.Constraint("DistanceY", 0, 2, -1, 1, Q("2180 mm")),
    Sketcher.Constraint("DistanceX", 4, 2, 4, 1, Q("91.406933 mm")),
    Sketcher.Constraint("DistanceX", 4, 2, -1, 1, Q("3185.703466 mm")),
    Sketcher.Constraint("DistanceY", 4, 2, -1, 1, Q("2194.296534 mm")),
])
pad7 = body.newObject("PartDesign::Pad", "Pad006")
pad7.Profile = sketch7
pad7.Length = 620
pad7.Reversed = True

sketch8 = body.newObject("Sketcher::SketchObject", "Sketch007")
sketch8.AttachmentSupport = (doc.getObject("XZ_Plane"), [""])
sketch8.MapMode = "FlatFace"
sketch8.AttachmentOffset = App.Placement(App.Vector(0, 0, 310), App.Rotation())
sketch8.addGeometry([
    Part.LineSegment(App.Vector(-3200, 2180, 0), App.Vector(-3200, 2300, 0)),
    Part.LineSegment(App.Vector(-3200, 2300, 0), App.Vector(-3080, 2300, 0)),
    Part.LineSegment(App.Vector(-3080, 2300, 0), App.Vector(-3080, 2180, 0)),
    Part.LineSegment(App.Vector(-3080, 2180, 0), App.Vector(-3200, 2180, 0)),
    Part.LineSegment(App.Vector(-3094.296534, 2285.703466, 0), App.Vector(-3185.703466, 2285.703466, 0)),
    Part.LineSegment(App.Vector(-3185.703466, 2285.703466, 0), App.Vector(-3185.703466, 2194.296534, 0)),
    Part.LineSegment(App.Vector(-3185.703466, 2194.296534, 0), App.Vector(-3094.296534, 2194.296534, 0)),
    Part.LineSegment(App.Vector(-3094.296534, 2194.296534, 0), App.Vector(-3094.296534, 2285.703466, 0)),
], False)
sketch8.addConstraint([
    Sketcher.Constraint("Coincident", 0, 2, 1, 1),
    Sketcher.Constraint("Coincident", 1, 2, 2, 1),
    Sketcher.Constraint("Coincident", 2, 2, 3, 1),
    Sketcher.Constraint("Coincident", 3, 2, 0, 1),
    Sketcher.Constraint("Coincident", 4, 2, 5, 1),
    Sketcher.Constraint("Coincident", 5, 2, 6, 1),
    Sketcher.Constraint("Coincident", 6, 2, 7, 1),
    Sketcher.Constraint("Coincident", 7, 2, 4, 1),
    Sketcher.Constraint("Vertical", 0),
    Sketcher.Constraint("Horizontal", 1),
    Sketcher.Constraint("Vertical", 2),
    Sketcher.Constraint("Horizontal", 3),
    Sketcher.Constraint("Horizontal", 4),
    Sketcher.Constraint("Vertical", 5),
    Sketcher.Constraint("Horizontal", 6),
    Sketcher.Constraint("Vertical", 7),
    Sketcher.Constraint("Equal", 3, 0),
    Sketcher.Constraint("Equal", 6, 5),
    Sketcher.Constraint("DistanceX", 1, 1, 1, 2, Q("120 mm")),
    Sketcher.Constraint("DistanceX", 0, 2, -1, 1, Q("3200 mm")),
    Sketcher.Constraint("DistanceY", -1, 1, 0, 2, Q("2300 mm")),
    Sketcher.Constraint("DistanceX", 4, 2, 4, 1, Q("91.406933 mm")),
    Sketcher.Constraint("DistanceX", 4, 2, -1, 1, Q("3185.703466 mm")),
    Sketcher.Constraint("DistanceY", -1, 1, 4, 2, Q("2285.703466 mm")),
])
pad8 = body.newObject("PartDesign::Pad", "Pad007")
pad8.Profile = sketch8
pad8.Length = 620
pad8.Reversed = True

sketch9 = body.newObject("Sketcher::SketchObject", "Sketch008")
sketch9.AttachmentSupport = (doc.getObject("XZ_Plane"), [""])
sketch9.MapMode = "FlatFace"
sketch9.AttachmentOffset = App.Placement(App.Vector(0, 0, 310), App.Rotation())
sketch9.addGeometry([
    Part.LineSegment(App.Vector(3080, -2300, 0), App.Vector(3080, -2180, 0)),
    Part.LineSegment(App.Vector(3080, -2180, 0), App.Vector(3200, -2180, 0)),
    Part.LineSegment(App.Vector(3200, -2180, 0), App.Vector(3200, -2300, 0)),
    Part.LineSegment(App.Vector(3200, -2300, 0), App.Vector(3080, -2300, 0)),
    Part.LineSegment(App.Vector(3185.703466, -2194.296534, 0), App.Vector(3094.296534, -2194.296534, 0)),
    Part.LineSegment(App.Vector(3094.296534, -2194.296534, 0), App.Vector(3094.296534, -2285.703466, 0)),
    Part.LineSegment(App.Vector(3094.296534, -2285.703466, 0), App.Vector(3185.703466, -2285.703466, 0)),
    Part.LineSegment(App.Vector(3185.703466, -2285.703466, 0), App.Vector(3185.703466, -2194.296534, 0)),
], False)
sketch9.addConstraint([
    Sketcher.Constraint("Coincident", 0, 2, 1, 1),
    Sketcher.Constraint("Coincident", 1, 2, 2, 1),
    Sketcher.Constraint("Coincident", 2, 2, 3, 1),
    Sketcher.Constraint("Coincident", 3, 2, 0, 1),
    Sketcher.Constraint("Coincident", 4, 2, 5, 1),
    Sketcher.Constraint("Coincident", 5, 2, 6, 1),
    Sketcher.Constraint("Coincident", 6, 2, 7, 1),
    Sketcher.Constraint("Coincident", 7, 2, 4, 1),
    Sketcher.Constraint("Vertical", 0),
    Sketcher.Constraint("Horizontal", 1),
    Sketcher.Constraint("Vertical", 2),
    Sketcher.Constraint("Horizontal", 3),
    Sketcher.Constraint("Horizontal", 4),
    Sketcher.Constraint("Vertical", 5),
    Sketcher.Constraint("Horizontal", 6),
    Sketcher.Constraint("Vertical", 7),
    Sketcher.Constraint("Equal", 3, 0),
    Sketcher.Constraint("Equal", 6, 5),
    Sketcher.Constraint("DistanceX", 1, 1, 1, 2, Q("120 mm")),
    Sketcher.Constraint("DistanceX", -1, 1, 0, 2, Q("3080 mm")),
    Sketcher.Constraint("DistanceY", 0, 2, -1, 1, Q("2180 mm")),
    Sketcher.Constraint("DistanceX", 4, 2, 4, 1, Q("91.406933 mm")),
    Sketcher.Constraint("DistanceX", -1, 1, 4, 2, Q("3094.296534 mm")),
    Sketcher.Constraint("DistanceY", 4, 2, -1, 1, Q("2194.296534 mm")),
])
pad9 = body.newObject("PartDesign::Pad", "Pad008")
pad9.Profile = sketch9
pad9.Length = 620
pad9.Reversed = True

sketch10 = body.newObject("Sketcher::SketchObject", "Sketch009")
sketch10.AttachmentSupport = (doc.getObject("XZ_Plane"), [""])
sketch10.MapMode = "FlatFace"
sketch10.AttachmentOffset = App.Placement(App.Vector(0, 0, 310), App.Rotation())
sketch10.addGeometry([
    Part.LineSegment(App.Vector(3080, 2180, 0), App.Vector(3080, 2300, 0)),
    Part.LineSegment(App.Vector(3080, 2300, 0), App.Vector(3200, 2300, 0)),
    Part.LineSegment(App.Vector(3200, 2300, 0), App.Vector(3200, 2180, 0)),
    Part.LineSegment(App.Vector(3200, 2180, 0), App.Vector(3080, 2180, 0)),
    Part.LineSegment(App.Vector(3185.703466, 2285.703466, 0), App.Vector(3094.296534, 2285.703466, 0)),
    Part.LineSegment(App.Vector(3094.296534, 2285.703466, 0), App.Vector(3094.296534, 2194.296534, 0)),
    Part.LineSegment(App.Vector(3094.296534, 2194.296534, 0), App.Vector(3185.703466, 2194.296534, 0)),
    Part.LineSegment(App.Vector(3185.703466, 2194.296534, 0), App.Vector(3185.703466, 2285.703466, 0)),
], False)
sketch10.addConstraint([
    Sketcher.Constraint("Coincident", 0, 2, 1, 1),
    Sketcher.Constraint("Coincident", 1, 2, 2, 1),
    Sketcher.Constraint("Coincident", 2, 2, 3, 1),
    Sketcher.Constraint("Coincident", 3, 2, 0, 1),
    Sketcher.Constraint("Coincident", 4, 2, 5, 1),
    Sketcher.Constraint("Coincident", 5, 2, 6, 1),
    Sketcher.Constraint("Coincident", 6, 2, 7, 1),
    Sketcher.Constraint("Coincident", 7, 2, 4, 1),
    Sketcher.Constraint("Vertical", 0),
    Sketcher.Constraint("Horizontal", 1),
    Sketcher.Constraint("Vertical", 2),
    Sketcher.Constraint("Horizontal", 3),
    Sketcher.Constraint("Horizontal", 4),
    Sketcher.Constraint("Vertical", 5),
    Sketcher.Constraint("Horizontal", 6),
    Sketcher.Constraint("Vertical", 7),
    Sketcher.Constraint("Equal", 3, 0),
    Sketcher.Constraint("Equal", 6, 5),
    Sketcher.Constraint("DistanceX", 1, 1, 1, 2, Q("120 mm")),
    Sketcher.Constraint("DistanceX", -1, 1, 0, 2, Q("3080 mm")),
    Sketcher.Constraint("DistanceY", -1, 1, 0, 2, Q("2300 mm")),
    Sketcher.Constraint("DistanceX", 4, 2, 4, 1, Q("91.406933 mm")),
    Sketcher.Constraint("DistanceX", -1, 1, 4, 2, Q("3094.296534 mm")),
    Sketcher.Constraint("DistanceY", -1, 1, 4, 2, Q("2285.703466 mm")),
])
pad10 = body.newObject("PartDesign::Pad", "Pad009")
pad10.Profile = sketch10
pad10.Length = 620
pad10.Reversed = True

doc.recompute()
